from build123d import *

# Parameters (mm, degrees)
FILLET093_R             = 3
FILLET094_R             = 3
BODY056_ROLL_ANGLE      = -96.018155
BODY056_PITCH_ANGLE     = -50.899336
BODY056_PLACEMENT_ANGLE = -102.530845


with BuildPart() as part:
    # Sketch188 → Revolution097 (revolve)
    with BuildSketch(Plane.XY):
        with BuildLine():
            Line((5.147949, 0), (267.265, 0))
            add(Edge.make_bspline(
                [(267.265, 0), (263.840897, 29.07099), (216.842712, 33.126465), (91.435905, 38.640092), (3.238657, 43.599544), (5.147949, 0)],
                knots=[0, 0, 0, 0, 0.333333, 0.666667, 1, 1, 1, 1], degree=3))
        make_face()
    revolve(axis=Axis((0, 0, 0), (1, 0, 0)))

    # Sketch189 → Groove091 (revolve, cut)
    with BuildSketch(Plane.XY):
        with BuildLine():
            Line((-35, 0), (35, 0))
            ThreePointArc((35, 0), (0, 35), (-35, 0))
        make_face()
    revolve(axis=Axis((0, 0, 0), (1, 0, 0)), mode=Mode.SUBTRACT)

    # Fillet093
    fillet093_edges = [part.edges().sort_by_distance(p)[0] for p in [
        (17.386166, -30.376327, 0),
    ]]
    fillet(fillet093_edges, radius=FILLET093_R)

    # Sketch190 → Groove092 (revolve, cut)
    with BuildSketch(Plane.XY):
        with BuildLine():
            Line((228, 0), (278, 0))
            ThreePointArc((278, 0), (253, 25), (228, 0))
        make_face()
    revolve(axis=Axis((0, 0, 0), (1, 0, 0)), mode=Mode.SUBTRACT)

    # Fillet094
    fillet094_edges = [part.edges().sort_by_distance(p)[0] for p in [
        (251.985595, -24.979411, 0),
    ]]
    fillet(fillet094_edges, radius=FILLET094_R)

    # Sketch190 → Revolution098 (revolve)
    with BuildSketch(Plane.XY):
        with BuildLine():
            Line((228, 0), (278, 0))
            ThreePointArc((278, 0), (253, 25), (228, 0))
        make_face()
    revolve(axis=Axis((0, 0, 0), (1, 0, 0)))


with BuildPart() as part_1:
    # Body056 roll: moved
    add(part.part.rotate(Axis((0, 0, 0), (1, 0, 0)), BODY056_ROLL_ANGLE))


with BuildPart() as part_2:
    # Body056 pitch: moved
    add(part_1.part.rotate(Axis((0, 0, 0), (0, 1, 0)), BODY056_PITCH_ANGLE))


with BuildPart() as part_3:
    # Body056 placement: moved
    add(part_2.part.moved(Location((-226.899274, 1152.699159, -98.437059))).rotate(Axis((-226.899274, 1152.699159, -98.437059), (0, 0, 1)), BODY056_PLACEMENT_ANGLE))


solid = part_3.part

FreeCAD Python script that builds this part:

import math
import FreeCAD as App
import Part
import Sketcher
from FreeCAD import Vector
Q = App.Units.Quantity


def edges_at(feature, points):
    """Names of the edges that pass closest to the given points."""
    edges = feature.Shape.Edges
    near = lambda p: min(range(len(edges)), key=lambda i: edges[i].distToShape(Part.Vertex(*p))[0])
    return sorted({f"Edge{near(p) + 1}" for p in points})

doc = App.newDocument("Part")
params = doc.addObject("Spreadsheet::Sheet", "Params")
for row, (alias, value) in enumerate([
    ("revolution_angle", "360 deg"),
    ("sketch2_radius", "35 mm"),
    ("groove_angle", "360 deg"),
    ("fillet_radius", "3 mm"),
    ("sketch3_radius", "25 mm"),
    ("groove2_angle", "360 deg"),
    ("fillet2_radius", "3 mm"),
    ("sketch4_radius", "25 mm"),
    ("revolution2_angle", "360 deg"),
], start=1):
    params.set(f"A{row}", alias)
    params.set(f"B{row}", "=" + value)
    params.setAlias(f"B{row}", alias)

body = doc.addObject("PartDesign::Body", "Body")

# Sketch on XY plane
sketch1 = doc.addObject("Sketcher::SketchObject", "Sketch")
body.addObject(sketch1)
sketch1.AttachmentSupport = (doc.XY_Plane, [""])
sketch1.MapMode = "FlatFace"
sketch1.addGeometry([
    Part.LineSegment(Vector(5.147949, 0, 0), Vector(267.265, 0, 0)),
    Part.BSplineCurve([Vector(267.265, 0, 0), Vector(263.840897, 29.07099, 0), Vector(216.842712, 33.126465, 0), Vector(91.435905, 38.640092, 0), Vector(3.238657, 43.599544, 0), Vector(5.147949, 0, 0)], [4, 1, 1, 4], [0, 0.333333, 0.666667, 1], False, 3, [1, 1, 1, 1, 1, 1], False),
], False)
sketch1.addConstraint([
    Sketcher.Constraint("Block", 1),
    Sketcher.Constraint("Coincident", 0, 1, 1, 2),
    Sketcher.Constraint("Coincident", 1, 1, 0, 2),
])
revolution = doc.addObject("PartDesign::Revolution", "Revolution")
body.addObject(revolution)
revolution.Profile = sketch1
revolution.ReferenceAxis = (sketch1, ["H_Axis"])
revolution.setExpression("Angle", "Params.revolution_angle")

# Sketch on XY plane
sketch2 = doc.addObject("Sketcher::SketchObject", "Sketch001")
body.addObject(sketch2)
sketch2.AttachmentSupport = (doc.XY_Plane, [""])
sketch2.MapMode = "FlatFace"
sketch2.addGeometry([
    Part.LineSegment(Vector(-35, 0, 0), Vector(35, 0, 0)),
    Part.ArcOfCircle(Part.Circle(Vector(0, 0, 0), Vector(0, 0, 1), 35), math.radians(0), math.radians(180)),
], False)
sketch2.addConstraint([
    Sketcher.Constraint("Coincident", 0, 1, 1, 2),
    Sketcher.Constraint("Coincident", 1, 1, 0, 2),
    Sketcher.Constraint("Horizontal", 0),
    Sketcher.Constraint("Coincident", 1, 3, -1, 1),
    Sketcher.Constraint("PointOnObject", 0, 1, -1),
    Sketcher.Constraint("Radius", 1, Q("35 mm")),
])
sketch2.setExpression("Constraints[5]", "Params.sketch2_radius")
groove = doc.addObject("PartDesign::Groove", "Groove")
body.addObject(groove)
groove.Profile = sketch2
groove.ReferenceAxis = (sketch2, ["H_Axis"])
groove.setExpression("Angle", "Params.groove_angle")
doc.recompute()

fillet = doc.addObject("PartDesign::Fillet", "Fillet")
body.addObject(fillet)
fillet.Base = (groove, edges_at(groove, [(17.386, -30.376, 0)]))
fillet.setExpression("Radius", "Params.fillet_radius")

# Sketch on XY plane
sketch3 = doc.addObject("Sketcher::SketchObject", "Sketch002")
body.addObject(sketch3)
sketch3.AttachmentSupport = (doc.XY_Plane, [""])
sketch3.MapMode = "FlatFace"
sketch3.addGeometry([
    Part.LineSegment(Vector(228, 0, 0), Vector(278, 0, 0)),
    Part.ArcOfCircle(Part.Circle(Vector(253, 0, 0), Vector(0, 0, 1), 25), math.radians(0), math.radians(180)),
], False)
sketch3.addConstraint([
    Sketcher.Constraint("Coincident", 0, 1, 1, 2),
    Sketcher.Constraint("Coincident", 1, 1, 0, 2),
    Sketcher.Constraint("Horizontal", 0),
    Sketcher.Constraint("PointOnObject", 1, 3, -1),
    Sketcher.Constraint("PointOnObject", 0, 1, -1),
    Sketcher.Constraint("Radius", 1, Q("25 mm")),
    Sketcher.Constraint("DistanceX", -1, 1, 1, 3, Q("253 mm")),
])
sketch3.setExpression("Constraints[5]", "Params.sketch3_radius")
groove2 = doc.addObject("PartDesign::Groove", "Groove001")
body.addObject(groove2)
groove2.Profile = sketch3
groove2.ReferenceAxis = (sketch3, ["H_Axis"])
groove2.setExpression("Angle", "Params.groove2_angle")
doc.recompute()

fillet2 = doc.addObject("PartDesign::Fillet", "Fillet001")
body.addObject(fillet2)
fillet2.Base = (groove2, edges_at(groove2, [(251.986, -24.979, 0)]))
fillet2.setExpression("Radius", "Params.fillet2_radius")

# Sketch on XY plane
sketch4 = doc.addObject("Sketcher::SketchObject", "Sketch003")
body.addObject(sketch4)
sketch4.AttachmentSupport = (doc.XY_Plane, [""])
sketch4.MapMode = "FlatFace"
sketch4.addGeometry([
    Part.LineSegment(Vector(228, 0, 0), Vector(278, 0, 0)),
    Part.ArcOfCircle(Part.Circle(Vector(253, 0, 0), Vector(0, 0, 1), 25), math.radians(0), math.radians(180)),
], False)
sketch4.addConstraint([
    Sketcher.Constraint("Coincident", 0, 1, 1, 2),
    Sketcher.Constraint("Coincident", 1, 1, 0, 2),
    Sketcher.Constraint("Horizontal", 0),
    Sketcher.Constraint("PointOnObject", 1, 3, -1),
    Sketcher.Constraint("PointOnObject", 0, 1, -1),
    Sketcher.Constraint("Radius", 1, Q("25 mm")),
    Sketcher.Constraint("DistanceX", -1, 1, 1, 3, Q("253 mm")),
])
sketch4.setExpression("Constraints[5]", "Params.sketch4_radius")
revolution2 = doc.addObject("PartDesign::Revolution", "Revolution001")
body.addObject(revolution2)
revolution2.Profile = sketch4
revolution2.ReferenceAxis = (sketch4, ["H_Axis"])
revolution2.setExpression("Angle", "Params.revolution2_angle")
body2 = doc.addObject("PartDesign::Body", "Body001")
doc.recompute()

body.Placement = App.Placement(Vector(0, 0, 0), App.Rotation(Vector(1, 0, 0), 263.981845))
boolean = doc.addObject("PartDesign::Boolean", "Boolean")
body2.addObject(boolean)
boolean.Type = "Fuse"
boolean.addObjects([body])
body3 = doc.addObject("PartDesign::Body", "Body002")
doc.recompute()

body2.Placement = App.Placement(Vector(0, 0, 0), App.Rotation(Vector(0, 1, 0), 309.100664))
boolean2 = doc.addObject("PartDesign::Boolean", "Boolean001")
body3.addObject(boolean2)
boolean2.Type = "Fuse"
boolean2.addObjects([body2])
body4 = doc.addObject("PartDesign::Body", "Body003")
doc.recompute()

body3.Placement = App.Placement(Vector(-226.899274, 1152.699159, -98.437059), App.Rotation(Vector(0, 0, 1), 257.469155))
boolean3 = doc.addObject("PartDesign::Boolean", "Boolean002")
body4.addObject(boolean3)
boolean3.Type = "Fuse"
boolean3.addObjects([body3])

doc.recompute()
